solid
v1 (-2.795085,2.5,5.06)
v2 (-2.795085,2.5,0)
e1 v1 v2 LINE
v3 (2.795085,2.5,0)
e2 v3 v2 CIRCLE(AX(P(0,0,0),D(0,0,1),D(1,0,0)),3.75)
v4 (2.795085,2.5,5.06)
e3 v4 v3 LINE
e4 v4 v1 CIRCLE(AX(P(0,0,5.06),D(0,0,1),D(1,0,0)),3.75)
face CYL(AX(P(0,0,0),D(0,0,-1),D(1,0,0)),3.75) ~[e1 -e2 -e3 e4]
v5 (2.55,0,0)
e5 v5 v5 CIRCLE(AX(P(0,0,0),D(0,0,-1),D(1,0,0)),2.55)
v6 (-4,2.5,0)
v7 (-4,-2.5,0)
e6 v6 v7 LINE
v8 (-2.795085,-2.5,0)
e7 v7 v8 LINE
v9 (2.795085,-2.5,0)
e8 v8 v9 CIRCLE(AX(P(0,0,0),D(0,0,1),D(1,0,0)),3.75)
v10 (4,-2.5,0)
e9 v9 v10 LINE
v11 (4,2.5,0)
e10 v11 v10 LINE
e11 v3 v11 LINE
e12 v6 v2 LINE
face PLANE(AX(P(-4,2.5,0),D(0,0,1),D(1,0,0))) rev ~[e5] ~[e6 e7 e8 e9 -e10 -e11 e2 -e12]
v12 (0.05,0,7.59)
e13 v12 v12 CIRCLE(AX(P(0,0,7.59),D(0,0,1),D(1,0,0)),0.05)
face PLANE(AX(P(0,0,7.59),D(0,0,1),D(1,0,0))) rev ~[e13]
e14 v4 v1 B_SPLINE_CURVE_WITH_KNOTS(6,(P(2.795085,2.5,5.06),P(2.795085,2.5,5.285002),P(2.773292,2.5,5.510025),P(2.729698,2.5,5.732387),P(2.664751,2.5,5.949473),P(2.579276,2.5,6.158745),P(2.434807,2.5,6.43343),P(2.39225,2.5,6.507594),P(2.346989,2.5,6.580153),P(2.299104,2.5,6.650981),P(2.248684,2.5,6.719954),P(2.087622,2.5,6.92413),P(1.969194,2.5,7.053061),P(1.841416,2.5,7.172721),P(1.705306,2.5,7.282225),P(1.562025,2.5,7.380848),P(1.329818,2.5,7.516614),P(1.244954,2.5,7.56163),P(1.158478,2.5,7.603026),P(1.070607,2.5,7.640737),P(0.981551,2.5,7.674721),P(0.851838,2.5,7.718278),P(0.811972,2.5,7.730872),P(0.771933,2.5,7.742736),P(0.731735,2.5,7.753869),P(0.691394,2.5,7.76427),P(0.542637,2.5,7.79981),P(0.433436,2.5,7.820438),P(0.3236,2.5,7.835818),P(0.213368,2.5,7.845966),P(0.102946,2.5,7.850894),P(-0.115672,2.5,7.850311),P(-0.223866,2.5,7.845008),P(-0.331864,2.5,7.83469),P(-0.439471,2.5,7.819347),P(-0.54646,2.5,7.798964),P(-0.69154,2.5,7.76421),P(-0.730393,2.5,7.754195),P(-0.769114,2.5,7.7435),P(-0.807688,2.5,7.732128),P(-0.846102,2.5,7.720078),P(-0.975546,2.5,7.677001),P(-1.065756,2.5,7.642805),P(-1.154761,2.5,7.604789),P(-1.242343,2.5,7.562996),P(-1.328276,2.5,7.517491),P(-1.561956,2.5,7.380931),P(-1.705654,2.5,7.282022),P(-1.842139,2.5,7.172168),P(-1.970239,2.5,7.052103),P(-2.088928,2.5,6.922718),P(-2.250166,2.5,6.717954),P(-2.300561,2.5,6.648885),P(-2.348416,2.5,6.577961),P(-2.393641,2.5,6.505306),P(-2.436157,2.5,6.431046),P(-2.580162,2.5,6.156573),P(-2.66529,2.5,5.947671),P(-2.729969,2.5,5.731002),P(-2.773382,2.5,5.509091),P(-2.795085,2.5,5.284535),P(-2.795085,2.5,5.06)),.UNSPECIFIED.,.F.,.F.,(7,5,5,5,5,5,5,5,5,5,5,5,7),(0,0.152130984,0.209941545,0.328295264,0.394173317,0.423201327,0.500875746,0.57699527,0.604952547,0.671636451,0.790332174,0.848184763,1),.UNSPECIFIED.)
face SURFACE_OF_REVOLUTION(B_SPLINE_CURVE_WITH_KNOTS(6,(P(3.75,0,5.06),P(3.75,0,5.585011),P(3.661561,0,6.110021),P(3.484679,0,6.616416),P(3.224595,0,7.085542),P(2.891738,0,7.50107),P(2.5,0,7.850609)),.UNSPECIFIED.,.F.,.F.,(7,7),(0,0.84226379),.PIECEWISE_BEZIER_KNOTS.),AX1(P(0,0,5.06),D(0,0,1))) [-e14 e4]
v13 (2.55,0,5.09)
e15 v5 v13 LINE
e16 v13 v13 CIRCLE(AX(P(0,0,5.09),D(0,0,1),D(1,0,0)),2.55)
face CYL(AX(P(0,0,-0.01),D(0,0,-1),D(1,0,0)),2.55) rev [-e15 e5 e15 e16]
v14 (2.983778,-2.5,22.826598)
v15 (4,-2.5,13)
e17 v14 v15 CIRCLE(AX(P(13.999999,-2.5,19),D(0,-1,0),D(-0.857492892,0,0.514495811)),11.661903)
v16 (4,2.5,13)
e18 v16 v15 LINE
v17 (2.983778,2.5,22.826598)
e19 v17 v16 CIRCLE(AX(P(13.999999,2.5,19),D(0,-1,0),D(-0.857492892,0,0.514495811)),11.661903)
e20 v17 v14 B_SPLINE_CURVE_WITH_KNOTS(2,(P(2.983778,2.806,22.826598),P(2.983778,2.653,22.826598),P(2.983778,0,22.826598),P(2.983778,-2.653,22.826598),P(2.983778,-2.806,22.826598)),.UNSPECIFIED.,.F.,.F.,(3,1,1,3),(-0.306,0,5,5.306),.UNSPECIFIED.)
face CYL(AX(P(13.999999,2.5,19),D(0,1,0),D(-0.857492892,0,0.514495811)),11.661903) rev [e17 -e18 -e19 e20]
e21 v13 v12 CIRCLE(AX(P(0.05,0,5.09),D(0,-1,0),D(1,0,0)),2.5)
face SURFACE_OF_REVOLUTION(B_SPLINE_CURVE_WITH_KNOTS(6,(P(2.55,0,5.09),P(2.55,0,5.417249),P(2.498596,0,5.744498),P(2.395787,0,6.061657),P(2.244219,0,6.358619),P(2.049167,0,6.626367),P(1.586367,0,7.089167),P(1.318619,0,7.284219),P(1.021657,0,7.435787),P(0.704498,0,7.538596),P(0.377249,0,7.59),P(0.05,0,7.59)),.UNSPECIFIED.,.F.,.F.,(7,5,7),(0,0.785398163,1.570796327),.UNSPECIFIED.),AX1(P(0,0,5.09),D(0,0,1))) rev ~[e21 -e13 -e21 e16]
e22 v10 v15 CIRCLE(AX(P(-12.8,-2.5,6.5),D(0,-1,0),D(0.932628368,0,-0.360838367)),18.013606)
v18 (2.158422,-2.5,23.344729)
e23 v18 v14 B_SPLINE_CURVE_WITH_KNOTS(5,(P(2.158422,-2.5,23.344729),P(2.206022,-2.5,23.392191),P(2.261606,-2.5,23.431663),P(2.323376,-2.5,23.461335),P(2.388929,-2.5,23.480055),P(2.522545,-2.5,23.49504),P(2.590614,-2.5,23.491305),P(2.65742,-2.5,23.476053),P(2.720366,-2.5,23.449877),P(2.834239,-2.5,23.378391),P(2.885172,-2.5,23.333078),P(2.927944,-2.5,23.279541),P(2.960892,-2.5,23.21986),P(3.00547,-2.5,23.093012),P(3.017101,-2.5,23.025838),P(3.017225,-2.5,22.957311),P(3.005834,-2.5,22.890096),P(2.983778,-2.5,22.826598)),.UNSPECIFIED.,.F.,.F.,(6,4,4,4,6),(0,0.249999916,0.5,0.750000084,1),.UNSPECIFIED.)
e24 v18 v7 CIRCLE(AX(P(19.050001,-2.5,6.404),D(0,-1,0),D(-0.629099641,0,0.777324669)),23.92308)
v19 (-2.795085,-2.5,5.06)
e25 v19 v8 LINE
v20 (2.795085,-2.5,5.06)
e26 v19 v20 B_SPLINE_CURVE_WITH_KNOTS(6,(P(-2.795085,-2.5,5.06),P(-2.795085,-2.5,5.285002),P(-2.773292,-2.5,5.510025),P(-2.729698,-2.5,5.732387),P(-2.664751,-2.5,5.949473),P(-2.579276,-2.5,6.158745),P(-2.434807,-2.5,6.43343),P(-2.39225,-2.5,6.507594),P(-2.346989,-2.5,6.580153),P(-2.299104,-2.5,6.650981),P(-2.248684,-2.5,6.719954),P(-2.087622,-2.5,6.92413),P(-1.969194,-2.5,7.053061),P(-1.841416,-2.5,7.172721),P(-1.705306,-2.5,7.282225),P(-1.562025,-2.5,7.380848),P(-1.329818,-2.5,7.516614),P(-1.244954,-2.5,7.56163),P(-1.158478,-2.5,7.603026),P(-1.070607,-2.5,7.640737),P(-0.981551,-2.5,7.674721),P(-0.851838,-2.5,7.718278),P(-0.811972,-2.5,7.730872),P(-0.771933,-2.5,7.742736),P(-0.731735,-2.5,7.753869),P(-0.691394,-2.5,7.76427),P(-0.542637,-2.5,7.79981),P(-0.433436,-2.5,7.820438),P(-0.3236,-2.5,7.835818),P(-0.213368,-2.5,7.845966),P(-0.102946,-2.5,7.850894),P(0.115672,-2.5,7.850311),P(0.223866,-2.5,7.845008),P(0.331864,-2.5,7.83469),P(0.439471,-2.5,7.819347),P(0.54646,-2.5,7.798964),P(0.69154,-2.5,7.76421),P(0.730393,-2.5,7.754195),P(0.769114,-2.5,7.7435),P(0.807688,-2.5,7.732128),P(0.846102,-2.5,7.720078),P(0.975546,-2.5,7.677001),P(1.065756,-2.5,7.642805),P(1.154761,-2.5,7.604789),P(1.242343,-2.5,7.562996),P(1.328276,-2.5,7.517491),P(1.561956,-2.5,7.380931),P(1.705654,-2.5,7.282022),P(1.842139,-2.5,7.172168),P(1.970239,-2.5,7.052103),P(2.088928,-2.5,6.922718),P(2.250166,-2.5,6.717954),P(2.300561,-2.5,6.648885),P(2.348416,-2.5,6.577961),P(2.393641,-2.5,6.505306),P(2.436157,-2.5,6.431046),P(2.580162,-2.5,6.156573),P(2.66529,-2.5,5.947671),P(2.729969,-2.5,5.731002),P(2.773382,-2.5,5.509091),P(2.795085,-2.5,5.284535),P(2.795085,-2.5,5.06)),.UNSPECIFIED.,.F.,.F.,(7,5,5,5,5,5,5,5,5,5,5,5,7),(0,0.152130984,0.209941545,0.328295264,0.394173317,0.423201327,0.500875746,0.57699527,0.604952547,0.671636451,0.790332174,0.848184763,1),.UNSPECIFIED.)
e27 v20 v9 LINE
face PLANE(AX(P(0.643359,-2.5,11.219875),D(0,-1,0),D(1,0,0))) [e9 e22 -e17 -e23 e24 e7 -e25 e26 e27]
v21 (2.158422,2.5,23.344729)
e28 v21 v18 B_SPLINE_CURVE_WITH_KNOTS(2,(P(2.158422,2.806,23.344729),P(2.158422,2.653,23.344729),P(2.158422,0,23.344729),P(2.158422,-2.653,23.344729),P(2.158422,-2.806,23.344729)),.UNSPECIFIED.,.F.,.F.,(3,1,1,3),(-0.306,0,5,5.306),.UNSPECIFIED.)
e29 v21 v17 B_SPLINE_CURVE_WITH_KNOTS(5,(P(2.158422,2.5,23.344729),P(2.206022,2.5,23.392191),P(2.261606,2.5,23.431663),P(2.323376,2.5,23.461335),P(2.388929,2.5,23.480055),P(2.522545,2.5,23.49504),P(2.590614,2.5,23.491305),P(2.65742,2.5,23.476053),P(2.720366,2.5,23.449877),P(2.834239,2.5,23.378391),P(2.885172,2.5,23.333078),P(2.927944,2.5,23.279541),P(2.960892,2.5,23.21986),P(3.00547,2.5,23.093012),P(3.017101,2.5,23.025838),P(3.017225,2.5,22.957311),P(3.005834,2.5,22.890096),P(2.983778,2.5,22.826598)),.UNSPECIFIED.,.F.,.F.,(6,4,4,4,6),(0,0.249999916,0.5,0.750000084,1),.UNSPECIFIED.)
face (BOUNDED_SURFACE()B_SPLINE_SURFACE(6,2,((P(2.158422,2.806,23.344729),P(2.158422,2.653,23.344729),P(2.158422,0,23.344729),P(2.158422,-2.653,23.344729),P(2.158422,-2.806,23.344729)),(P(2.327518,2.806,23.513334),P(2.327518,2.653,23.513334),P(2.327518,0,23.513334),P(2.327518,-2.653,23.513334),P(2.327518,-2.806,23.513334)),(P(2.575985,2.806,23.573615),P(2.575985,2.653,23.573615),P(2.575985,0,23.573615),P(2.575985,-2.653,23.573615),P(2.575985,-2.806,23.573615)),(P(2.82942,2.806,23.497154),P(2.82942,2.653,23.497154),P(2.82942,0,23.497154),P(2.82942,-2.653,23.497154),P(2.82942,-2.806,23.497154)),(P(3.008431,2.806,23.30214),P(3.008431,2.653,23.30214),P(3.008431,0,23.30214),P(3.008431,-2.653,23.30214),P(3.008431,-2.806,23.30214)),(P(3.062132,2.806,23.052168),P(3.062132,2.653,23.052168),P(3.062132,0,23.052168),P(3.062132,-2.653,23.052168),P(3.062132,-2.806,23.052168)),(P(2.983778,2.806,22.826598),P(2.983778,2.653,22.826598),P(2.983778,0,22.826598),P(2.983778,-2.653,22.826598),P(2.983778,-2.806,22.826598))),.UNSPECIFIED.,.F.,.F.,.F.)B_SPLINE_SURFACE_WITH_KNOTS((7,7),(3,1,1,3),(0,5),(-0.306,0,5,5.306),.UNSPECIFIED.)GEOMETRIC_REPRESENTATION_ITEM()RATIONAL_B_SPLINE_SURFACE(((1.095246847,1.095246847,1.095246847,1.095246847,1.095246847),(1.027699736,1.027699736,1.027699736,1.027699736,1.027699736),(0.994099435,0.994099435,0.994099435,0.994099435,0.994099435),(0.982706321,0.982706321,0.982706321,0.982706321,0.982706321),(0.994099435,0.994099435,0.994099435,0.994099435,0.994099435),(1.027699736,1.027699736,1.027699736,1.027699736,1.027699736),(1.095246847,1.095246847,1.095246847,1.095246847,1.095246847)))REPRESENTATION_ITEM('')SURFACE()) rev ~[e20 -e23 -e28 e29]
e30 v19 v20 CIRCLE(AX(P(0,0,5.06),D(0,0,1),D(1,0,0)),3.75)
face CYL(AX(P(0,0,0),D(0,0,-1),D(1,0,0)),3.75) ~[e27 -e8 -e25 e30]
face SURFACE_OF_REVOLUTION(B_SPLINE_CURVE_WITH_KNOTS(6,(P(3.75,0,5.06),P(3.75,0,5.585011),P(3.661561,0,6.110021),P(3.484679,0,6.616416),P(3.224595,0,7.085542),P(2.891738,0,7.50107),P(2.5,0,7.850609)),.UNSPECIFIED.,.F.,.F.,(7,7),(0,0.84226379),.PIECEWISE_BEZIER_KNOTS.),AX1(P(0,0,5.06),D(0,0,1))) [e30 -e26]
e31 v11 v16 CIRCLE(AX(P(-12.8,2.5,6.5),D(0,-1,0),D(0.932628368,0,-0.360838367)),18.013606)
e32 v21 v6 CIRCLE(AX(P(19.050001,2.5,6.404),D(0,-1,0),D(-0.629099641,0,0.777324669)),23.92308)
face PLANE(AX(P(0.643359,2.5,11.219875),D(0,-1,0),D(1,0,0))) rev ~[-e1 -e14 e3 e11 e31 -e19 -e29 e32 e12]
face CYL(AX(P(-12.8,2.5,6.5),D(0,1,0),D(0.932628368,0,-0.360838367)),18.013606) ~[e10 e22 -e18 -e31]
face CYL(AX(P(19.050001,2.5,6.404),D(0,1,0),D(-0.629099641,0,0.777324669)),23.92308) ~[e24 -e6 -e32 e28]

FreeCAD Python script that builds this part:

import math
import FreeCAD as App
import Part
import Sketcher
from FreeCAD import Vector


def edges_at(feature, points):
    """Names of the edges that pass closest to the given points."""
    edges = feature.Shape.Edges
    near = lambda p: min(range(len(edges)), key=lambda i: edges[i].distToShape(Part.Vertex(*p))[0])
    return sorted({f"Edge{near(p) + 1}" for p in points})

doc = App.newDocument("Part")
params = doc.addObject("Spreadsheet::Sheet", "Params")
for row, (alias, value) in enumerate([
    ("sketch1_diameter", "5.1 mm"),
    ("pad1_length", "7.6 mm"),
    ("fillet_radius", "2.5 mm"),
    ("sketch2_width", "8 mm"),
    ("pad2_length", "5 mm"),
    ("sketch3_diameter", "7.5 mm"),
    ("pad3_length", "8.8 mm"),
    ("fillet2_radius", "3.74 mm"),
    ("fillet3_radius", "0.5 mm"),
], start=1):
    params.set(f"A{row}", alias)
    params.set(f"B{row}", "=" + value)
    params.setAlias(f"B{row}", alias)

body = doc.addObject("PartDesign::Body", "Body")

# Sketch on XY plane
sketch1 = doc.addObject("Sketcher::SketchObject", "Sketch")
body.addObject(sketch1)
sketch1.AttachmentSupport = (doc.XY_Plane, [""])
sketch1.MapMode = "FlatFace"
sketch1.AttachmentOffset = App.Placement(Vector(0, 0, -0.01), App.Rotation())
sketch1.addGeometry(Part.Circle(Vector(0, 0, 0), Vector(0, 0, 1), 2.55), False)
sketch1.addConstraint([
    Sketcher.Constraint("Coincident", 0, 3, -1, 1),
    Sketcher.Constraint("Diameter", 0, 5.1),
])
sketch1.setExpression("Constraints[1]", "Params.sketch1_diameter")
pad1 = doc.addObject("PartDesign::Pad", "Pad")
body.addObject(pad1)
pad1.Profile = sketch1
pad1.setExpression("Length", "Params.pad1_length")
doc.recompute()

fillet = doc.addObject("PartDesign::Fillet", "Fillet")
body.addObject(fillet)
fillet.Base = (pad1, edges_at(pad1, [(-2.55, 0, 7.59)]))
fillet.setExpression("Radius", "Params.fillet_radius")
body2 = doc.addObject("PartDesign::Body", "Body001")

# Sketch on XZ plane
sketch2 = doc.addObject("Sketcher::SketchObject", "Sketch001")
body2.addObject(sketch2)
sketch2.AttachmentSupport = (doc.getObject("XZ_Plane001"), [""])
sketch2.MapMode = "FlatFace"
sketch2.addGeometry([
    Part.LineSegment(Vector(-4, 0, 0), Vector(4, 0, 0)),
    Part.ArcOfCircle(Part.Circle(Vector(-12.8, 6.5, 0), Vector(0, 0, 1), 18.013606), math.radians(-21.151692), math.radians(21.151692)),
    Part.ArcOfCircle(Part.Circle(Vector(13.999999, 19, 0), Vector(0, 0, 1), 11.661903), math.radians(149.03624), math.radians(210.96376)),
    Part.ArcOfCircle(Part.Circle(Vector(19.050001, 6.404, 0), Vector(0, 0, 1), 23.92308), math.radians(128.983727), math.radians(195.52693)),
], False)
sketch2.addConstraint([
    Sketcher.Constraint("Coincident", 0, 2, 1, 1),
    Sketcher.Constraint("Coincident", 1, 2, 2, 2),
    Sketcher.Constraint("Coincident", 2, 1, 3, 1),
    Sketcher.Constraint("Coincident", 3, 2, 0, 1),
    Sketcher.Constraint("Horizontal", 0),
    Sketcher.Constraint("Symmetric", 0, 2, 3, 2, -1, 1),
    Sketcher.Constraint("Vertical", 0, 2, 1, 2),
    Sketcher.Constraint("Vertical", 1, 2, 2, 1),
    Sketcher.Constraint("DistanceX", 0, 1, 0, 2, 8.0),
    Sketcher.Constraint("DistanceX", -1, 1, 2, 3, 13.999999),
    Sketcher.Constraint("DistanceY", -1, 1, 2, 3, 19.0),
    Sketcher.Constraint("DistanceY", -1, 1, 1, 2, 13.0),
    Sketcher.Constraint("DistanceX", 1, 3, -1, 1, 12.8),
    Sketcher.Constraint("DistanceX", -1, 1, 3, 3, 19.050001),
])
sketch2.setExpression("Constraints[8]", "Params.sketch2_width")
pad2 = doc.addObject("PartDesign::Pad", "Pad001")
body2.addObject(pad2)
pad2.Profile = sketch2
pad2.setExpression("Length", "Params.pad2_length")
body3 = doc.addObject("PartDesign::Body", "Body002")
doc.recompute()

body2.Placement = App.Placement(Vector(0, 2.5, 0), App.Rotation(Vector(0, 0, 1), 0))
boolean = doc.addObject("PartDesign::Boolean", "Boolean")
body3.addObject(boolean)
boolean.Type = "Fuse"
boolean.addObjects([body2])
body4 = doc.addObject("PartDesign::Body", "Body003")

# Sketch on XY plane
sketch3 = doc.addObject("Sketcher::SketchObject", "Sketch002")
body4.addObject(sketch3)
sketch3.AttachmentSupport = (doc.getObject("XY_Plane003"), [""])
sketch3.MapMode = "FlatFace"
sketch3.addGeometry(Part.Circle(Vector(0, 0, 0), Vector(0, 0, 1), 3.75), False)
sketch3.addConstraint([
    Sketcher.Constraint("Coincident", 0, 3, -1, 1),
    Sketcher.Constraint("Diameter", 0, 7.5),
])
sketch3.setExpression("Constraints[1]", "Params.sketch3_diameter")
pad3 = doc.addObject("PartDesign::Pad", "Pad002")
body4.addObject(pad3)
pad3.Profile = sketch3
pad3.setExpression("Length", "Params.pad3_length")
doc.recompute()

fillet2 = doc.addObject("PartDesign::Fillet", "Fillet001")
body4.addObject(fillet2)
fillet2.Base = (pad3, edges_at(pad3, [(-3.75, 0, 8.8)]))
fillet2.setExpression("Radius", "Params.fillet2_radius")
doc.recompute()

boolean2 = doc.addObject("PartDesign::Boolean", "Boolean001")
body4.addObject(boolean2)
boolean2.Type = "Fuse"
boolean2.addObjects([body3])
doc.recompute()

boolean3 = doc.addObject("PartDesign::Boolean", "Boolean002")
body4.addObject(boolean3)
boolean3.Type = "Cut"
boolean3.addObjects([body])
doc.recompute()

fillet3 = doc.addObject("PartDesign::Fillet", "Fillet002")
body4.addObject(fillet3)
fillet3.Base = (boolean3, edges_at(boolean3, [(4, 0, 25)]))
fillet3.setExpression("Radius", "Params.fillet3_radius")

doc.recompute()
